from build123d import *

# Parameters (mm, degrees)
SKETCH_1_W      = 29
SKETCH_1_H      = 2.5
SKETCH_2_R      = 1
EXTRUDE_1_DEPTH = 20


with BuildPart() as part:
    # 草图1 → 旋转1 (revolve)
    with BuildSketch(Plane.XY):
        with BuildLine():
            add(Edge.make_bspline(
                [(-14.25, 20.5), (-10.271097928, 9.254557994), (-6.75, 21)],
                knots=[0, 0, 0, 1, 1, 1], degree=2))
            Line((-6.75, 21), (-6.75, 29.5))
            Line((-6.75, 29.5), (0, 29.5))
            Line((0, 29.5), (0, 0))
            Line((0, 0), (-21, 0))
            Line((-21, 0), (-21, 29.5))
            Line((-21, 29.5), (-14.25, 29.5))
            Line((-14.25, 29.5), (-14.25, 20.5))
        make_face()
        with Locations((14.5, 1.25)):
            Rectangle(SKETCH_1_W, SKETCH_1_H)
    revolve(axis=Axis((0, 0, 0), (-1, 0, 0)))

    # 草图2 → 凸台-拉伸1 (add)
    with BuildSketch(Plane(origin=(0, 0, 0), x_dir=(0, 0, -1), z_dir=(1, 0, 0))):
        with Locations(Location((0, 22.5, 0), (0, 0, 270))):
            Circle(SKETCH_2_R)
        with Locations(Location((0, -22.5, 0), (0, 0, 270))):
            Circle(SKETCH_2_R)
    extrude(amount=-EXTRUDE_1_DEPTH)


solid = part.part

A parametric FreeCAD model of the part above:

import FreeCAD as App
import Part
import Sketcher

V = App.Vector
Q = App.Units.Quantity

doc = App.newDocument("Part")
params = doc.addObject("Spreadsheet::Sheet", "Params")
for row, (alias, value) in enumerate([
    ("sketch1_width", "50 mm"),
    ("sketch1_height", "9 mm"),
    ("sketch1_height2", "27 mm"),
    ("revolution_angle", "360 deg"),
    ("sketch2_diameter", "2 mm"),
    ("pad1_length", "20 mm"),
], start=1):
    params.set(f"A{row}", alias)
    params.set(f"B{row}", "=" + value)
    params.setAlias(f"B{row}", alias)

body = doc.addObject("PartDesign::Body", "Body")

# Sketch on XY plane
sketch1 = body.newObject("Sketcher::SketchObject", "Sketch")
sketch1.AttachmentSupport = (doc.getObject("XY_Plane"), [""])
sketch1.MapMode = "FlatFace"
sketch1.addGeometry([
    Part.BSplineCurve([V(-14.25, 20.5, 0), V(-10.271098, 9.254558, 0), V(-6.75, 21, 0)], [3, 3], [0, 1], False, 2, [1, 1, 1], False),  # 0
    Part.LineSegment(V(-14.25, 20.5, 0), V(-14.25, 29.5, 0)),  # 1
    Part.LineSegment(V(-14.25, 29.5, 0), V(-21, 29.5, 0)),  # 2
    Part.LineSegment(V(-21, 29.5, 0), V(-21, 0, 0)),  # 3
    Part.LineSegment(V(-21, 0, 0), V(29, 0, 0)),  # 4
    Part.LineSegment(V(29, 0, 0), V(29, 2.5, 0)),  # 5
    Part.LineSegment(V(29, 2.5, 0), V(0, 2.5, 0)),  # 6
    Part.LineSegment(V(0, 2.5, 0), V(0, 29.5, 0)),  # 7
    Part.LineSegment(V(0, 29.5, 0), V(-6.75, 29.5, 0)),  # 8
    Part.LineSegment(V(-6.75, 29.5, 0), V(-6.75, 21, 0)),  # 9
], False)
sketch1.addConstraint([
    Sketcher.Constraint("Block", 0),
    Sketcher.Constraint("Coincident", 0, 1, 1, 1),
    Sketcher.Constraint("Coincident", 1, 2, 2, 1),
    Sketcher.Constraint("Coincident", 2, 2, 3, 1),
    Sketcher.Constraint("Coincident", 3, 2, 4, 1),
    Sketcher.Constraint("Coincident", 4, 2, 5, 1),
    Sketcher.Constraint("Coincident", 5, 2, 6, 1),
    Sketcher.Constraint("Coincident", 6, 2, 7, 1),
    Sketcher.Constraint("Coincident", 7, 2, 8, 1),
    Sketcher.Constraint("Coincident", 8, 2, 9, 1),
    Sketcher.Constraint("Coincident", 9, 2, 0, 2),
    Sketcher.Constraint("Vertical", 1),
    Sketcher.Constraint("Horizontal", 2),
    Sketcher.Constraint("Vertical", 3),
    Sketcher.Constraint("Horizontal", 4),
    Sketcher.Constraint("Vertical", 5),
    Sketcher.Constraint("Horizontal", 6),
    Sketcher.Constraint("Vertical", 7),
    Sketcher.Constraint("Horizontal", 8),
    Sketcher.Constraint("Vertical", 9),
    Sketcher.Constraint("PointOnObject", 3, 2, -1),
    Sketcher.Constraint("PointOnObject", 6, 2, -2),
    Sketcher.Constraint("Horizontal", 2, 2, 7, 2),
    Sketcher.Constraint("Equal", 2, 8),
    Sketcher.Constraint("DistanceX", 4, 1, 4, 2, Q("50 mm")),
    Sketcher.Constraint("DistanceY", 1, 1, 1, 2, Q("9 mm")),
    Sketcher.Constraint("DistanceY", 7, 1, 7, 2, Q("27 mm")),
])
sketch1.setExpression("Constraints[24]", "Params.sketch1_width")
sketch1.setExpression("Constraints[25]", "Params.sketch1_height")
sketch1.setExpression("Constraints[26]", "Params.sketch1_height2")
revolution = body.newObject("PartDesign::Revolution", "Revolution")
revolution.Profile = sketch1
revolution.ReferenceAxis = (sketch1, ["H_Axis"])
revolution.setExpression("Angle", "Params.revolution_angle")

# Sketch on YZ plane
sketch2 = body.newObject("Sketcher::SketchObject", "Sketch001")
sketch2.AttachmentSupport = (doc.getObject("YZ_Plane"), [""])
sketch2.MapMode = "FlatFace"
sketch2.addGeometry([
    Part.Circle(V(22.5, 0, 0), V(0, 0, 1), 1),
    Part.Circle(V(-22.5, 0, 0), V(0, 0, 1), 1),
], False)
sketch2.addConstraint([
    Sketcher.Constraint("Equal", 0, 1),
    Sketcher.Constraint("Symmetric", 0, 3, 1, 3, -1, 1),
    Sketcher.Constraint("PointOnObject", 0, 3, -1),
    Sketcher.Constraint("Diameter", 0, Q("2 mm")),
    Sketcher.Constraint("DistanceX", 1, 3, 0, 3, Q("45 mm")),
])
sketch2.setExpression("Constraints[3]", "Params.sketch2_diameter")
pad1 = body.newObject("PartDesign::Pad", "Pad")
pad1.Profile = sketch2
pad1.setExpression("Length", "Params.pad1_length")
pad1.Reversed = True

doc.recompute()
